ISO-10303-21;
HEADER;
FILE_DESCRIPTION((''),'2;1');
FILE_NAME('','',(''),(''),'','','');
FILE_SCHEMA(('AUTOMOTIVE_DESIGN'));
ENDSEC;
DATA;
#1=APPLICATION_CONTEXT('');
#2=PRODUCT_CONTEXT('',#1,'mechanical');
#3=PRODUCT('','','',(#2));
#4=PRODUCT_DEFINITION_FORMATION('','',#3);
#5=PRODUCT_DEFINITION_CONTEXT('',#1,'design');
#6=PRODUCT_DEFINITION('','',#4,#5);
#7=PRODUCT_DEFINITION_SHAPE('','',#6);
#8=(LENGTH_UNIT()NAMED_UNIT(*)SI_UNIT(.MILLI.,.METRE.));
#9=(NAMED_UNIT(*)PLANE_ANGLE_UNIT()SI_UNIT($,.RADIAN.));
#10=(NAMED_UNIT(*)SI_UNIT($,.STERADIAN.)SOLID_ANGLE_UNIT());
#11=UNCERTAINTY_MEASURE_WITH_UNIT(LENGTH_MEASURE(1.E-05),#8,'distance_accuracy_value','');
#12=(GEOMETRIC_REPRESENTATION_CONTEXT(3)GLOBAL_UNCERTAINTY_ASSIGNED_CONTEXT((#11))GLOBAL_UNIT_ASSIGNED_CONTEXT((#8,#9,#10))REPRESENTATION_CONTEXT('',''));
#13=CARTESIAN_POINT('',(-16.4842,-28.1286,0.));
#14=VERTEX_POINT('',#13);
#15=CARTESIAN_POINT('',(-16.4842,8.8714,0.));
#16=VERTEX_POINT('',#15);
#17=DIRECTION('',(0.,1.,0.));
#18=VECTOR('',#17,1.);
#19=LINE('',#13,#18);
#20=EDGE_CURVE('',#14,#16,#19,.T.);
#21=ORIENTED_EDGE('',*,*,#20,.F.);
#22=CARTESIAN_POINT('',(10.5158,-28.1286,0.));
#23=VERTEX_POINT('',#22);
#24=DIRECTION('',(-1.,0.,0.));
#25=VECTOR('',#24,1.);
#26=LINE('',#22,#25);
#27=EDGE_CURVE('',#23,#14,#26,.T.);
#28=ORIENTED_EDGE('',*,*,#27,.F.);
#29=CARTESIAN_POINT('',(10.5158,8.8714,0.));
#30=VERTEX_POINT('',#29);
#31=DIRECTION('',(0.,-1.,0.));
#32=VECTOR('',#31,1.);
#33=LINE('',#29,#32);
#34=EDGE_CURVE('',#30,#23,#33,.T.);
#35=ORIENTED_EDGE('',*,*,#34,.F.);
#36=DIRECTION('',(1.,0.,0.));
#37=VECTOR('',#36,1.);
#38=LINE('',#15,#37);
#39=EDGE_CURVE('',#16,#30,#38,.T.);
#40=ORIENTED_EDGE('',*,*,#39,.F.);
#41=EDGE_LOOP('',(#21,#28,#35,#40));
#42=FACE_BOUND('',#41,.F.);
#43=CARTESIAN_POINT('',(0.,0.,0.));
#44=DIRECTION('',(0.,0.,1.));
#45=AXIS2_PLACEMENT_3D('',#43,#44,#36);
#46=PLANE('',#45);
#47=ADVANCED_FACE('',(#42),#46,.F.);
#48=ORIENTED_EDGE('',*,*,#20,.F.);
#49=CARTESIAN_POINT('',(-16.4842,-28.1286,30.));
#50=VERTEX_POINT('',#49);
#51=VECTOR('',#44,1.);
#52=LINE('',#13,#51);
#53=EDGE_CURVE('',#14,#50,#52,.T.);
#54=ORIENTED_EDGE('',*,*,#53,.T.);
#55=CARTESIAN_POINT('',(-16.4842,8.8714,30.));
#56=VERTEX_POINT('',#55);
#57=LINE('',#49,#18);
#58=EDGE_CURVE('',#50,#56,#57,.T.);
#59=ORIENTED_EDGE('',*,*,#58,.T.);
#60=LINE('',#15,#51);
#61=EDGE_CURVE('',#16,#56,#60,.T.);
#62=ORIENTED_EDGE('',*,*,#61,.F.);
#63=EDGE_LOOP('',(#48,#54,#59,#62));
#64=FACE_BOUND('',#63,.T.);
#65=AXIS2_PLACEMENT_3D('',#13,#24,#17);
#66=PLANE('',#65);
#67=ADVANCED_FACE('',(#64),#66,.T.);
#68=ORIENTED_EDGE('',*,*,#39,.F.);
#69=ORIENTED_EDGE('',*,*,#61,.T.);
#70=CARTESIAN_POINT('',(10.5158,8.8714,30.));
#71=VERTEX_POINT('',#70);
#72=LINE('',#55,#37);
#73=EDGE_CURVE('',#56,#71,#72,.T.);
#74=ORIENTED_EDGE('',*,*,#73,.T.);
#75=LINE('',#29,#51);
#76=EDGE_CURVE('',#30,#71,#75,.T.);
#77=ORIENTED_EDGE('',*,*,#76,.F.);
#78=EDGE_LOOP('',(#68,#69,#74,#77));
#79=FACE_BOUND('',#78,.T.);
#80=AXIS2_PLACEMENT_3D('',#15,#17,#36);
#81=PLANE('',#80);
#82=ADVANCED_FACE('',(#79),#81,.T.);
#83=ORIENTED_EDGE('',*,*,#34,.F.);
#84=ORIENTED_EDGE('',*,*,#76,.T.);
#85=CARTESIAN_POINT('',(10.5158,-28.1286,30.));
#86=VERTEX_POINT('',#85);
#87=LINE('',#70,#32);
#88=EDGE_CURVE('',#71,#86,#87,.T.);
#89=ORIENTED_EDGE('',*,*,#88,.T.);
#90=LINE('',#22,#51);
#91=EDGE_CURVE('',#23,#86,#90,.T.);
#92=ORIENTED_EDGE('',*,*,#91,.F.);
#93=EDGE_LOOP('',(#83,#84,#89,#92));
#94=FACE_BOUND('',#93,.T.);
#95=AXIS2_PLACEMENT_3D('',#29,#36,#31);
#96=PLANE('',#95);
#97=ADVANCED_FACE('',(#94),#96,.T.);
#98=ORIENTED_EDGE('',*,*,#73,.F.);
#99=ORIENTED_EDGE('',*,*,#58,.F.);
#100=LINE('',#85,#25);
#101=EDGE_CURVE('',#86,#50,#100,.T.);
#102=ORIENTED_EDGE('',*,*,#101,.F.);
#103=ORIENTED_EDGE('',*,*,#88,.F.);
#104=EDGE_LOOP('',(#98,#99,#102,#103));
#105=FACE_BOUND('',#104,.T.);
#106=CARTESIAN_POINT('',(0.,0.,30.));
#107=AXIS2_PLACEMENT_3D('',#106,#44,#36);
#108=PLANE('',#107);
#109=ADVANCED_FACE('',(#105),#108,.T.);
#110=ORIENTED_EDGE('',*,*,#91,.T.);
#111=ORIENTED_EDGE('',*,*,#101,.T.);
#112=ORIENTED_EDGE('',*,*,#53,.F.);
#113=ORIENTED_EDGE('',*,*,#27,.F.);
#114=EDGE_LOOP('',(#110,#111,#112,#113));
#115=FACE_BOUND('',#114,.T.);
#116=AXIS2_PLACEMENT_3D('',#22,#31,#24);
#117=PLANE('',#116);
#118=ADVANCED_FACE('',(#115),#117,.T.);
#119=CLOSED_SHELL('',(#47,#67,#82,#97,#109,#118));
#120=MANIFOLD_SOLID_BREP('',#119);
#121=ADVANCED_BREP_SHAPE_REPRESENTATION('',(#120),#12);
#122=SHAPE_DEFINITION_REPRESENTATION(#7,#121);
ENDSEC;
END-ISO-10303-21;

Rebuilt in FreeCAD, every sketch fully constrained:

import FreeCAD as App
import Part
import Sketcher
from FreeCAD import Vector
Q = App.Units.Quantity

doc = App.newDocument("Part")
body = doc.addObject("PartDesign::Body", "Body")

# Sketch on XY plane
sketch1 = body.newObject("Sketcher::SketchObject", "Sketch")
sketch1.AttachmentSupport = (doc.getObject("XY_Plane"), [""])
sketch1.MapMode = "FlatFace"
sketch1.addGeometry(Part.LineSegment(Vector(11, 9, 0), Vector(-16, 9, 0)), False)
sketch1.addGeometry(Part.LineSegment(Vector(-16, 9, 0), Vector(-16, -28, 0)), False)
sketch1.addGeometry(Part.LineSegment(Vector(-16, -28, 0), Vector(11, -28, 0)), False)
sketch1.addGeometry(Part.LineSegment(Vector(11, -28, 0), Vector(11, 9, 0)), False)
sketch1.addConstraint(Sketcher.Constraint("Coincident", 0, 2, 1, 1))
sketch1.addConstraint(Sketcher.Constraint("Coincident", 1, 2, 2, 1))
sketch1.addConstraint(Sketcher.Constraint("Coincident", 2, 2, 3, 1))
sketch1.addConstraint(Sketcher.Constraint("Coincident", 3, 2, 0, 1))
sketch1.addConstraint(Sketcher.Constraint("Horizontal", 0))
sketch1.addConstraint(Sketcher.Constraint("Vertical", 1))
sketch1.addConstraint(Sketcher.Constraint("Horizontal", 2))
sketch1.addConstraint(Sketcher.Constraint("Vertical", 3))
sketch1.addConstraint(Sketcher.Constraint("DistanceX", 0, 2, 0, 1, Q("1.063 in")))
sketch1.addConstraint(Sketcher.Constraint("DistanceY", 1, 2, 1, 1, Q("1.4567 in")))
sketch1.addConstraint(Sketcher.Constraint("DistanceX", -1, 1, 2, 2, Q("0.414 in")))
sketch1.addConstraint(Sketcher.Constraint("DistanceY", -1, 1, 0, 2, 8.8714))
pad1 = body.newObject("PartDesign::Pad", "Pad")
pad1.Profile = sketch1
pad1.Length = Q("1.1811024 in")

doc.recompute()
